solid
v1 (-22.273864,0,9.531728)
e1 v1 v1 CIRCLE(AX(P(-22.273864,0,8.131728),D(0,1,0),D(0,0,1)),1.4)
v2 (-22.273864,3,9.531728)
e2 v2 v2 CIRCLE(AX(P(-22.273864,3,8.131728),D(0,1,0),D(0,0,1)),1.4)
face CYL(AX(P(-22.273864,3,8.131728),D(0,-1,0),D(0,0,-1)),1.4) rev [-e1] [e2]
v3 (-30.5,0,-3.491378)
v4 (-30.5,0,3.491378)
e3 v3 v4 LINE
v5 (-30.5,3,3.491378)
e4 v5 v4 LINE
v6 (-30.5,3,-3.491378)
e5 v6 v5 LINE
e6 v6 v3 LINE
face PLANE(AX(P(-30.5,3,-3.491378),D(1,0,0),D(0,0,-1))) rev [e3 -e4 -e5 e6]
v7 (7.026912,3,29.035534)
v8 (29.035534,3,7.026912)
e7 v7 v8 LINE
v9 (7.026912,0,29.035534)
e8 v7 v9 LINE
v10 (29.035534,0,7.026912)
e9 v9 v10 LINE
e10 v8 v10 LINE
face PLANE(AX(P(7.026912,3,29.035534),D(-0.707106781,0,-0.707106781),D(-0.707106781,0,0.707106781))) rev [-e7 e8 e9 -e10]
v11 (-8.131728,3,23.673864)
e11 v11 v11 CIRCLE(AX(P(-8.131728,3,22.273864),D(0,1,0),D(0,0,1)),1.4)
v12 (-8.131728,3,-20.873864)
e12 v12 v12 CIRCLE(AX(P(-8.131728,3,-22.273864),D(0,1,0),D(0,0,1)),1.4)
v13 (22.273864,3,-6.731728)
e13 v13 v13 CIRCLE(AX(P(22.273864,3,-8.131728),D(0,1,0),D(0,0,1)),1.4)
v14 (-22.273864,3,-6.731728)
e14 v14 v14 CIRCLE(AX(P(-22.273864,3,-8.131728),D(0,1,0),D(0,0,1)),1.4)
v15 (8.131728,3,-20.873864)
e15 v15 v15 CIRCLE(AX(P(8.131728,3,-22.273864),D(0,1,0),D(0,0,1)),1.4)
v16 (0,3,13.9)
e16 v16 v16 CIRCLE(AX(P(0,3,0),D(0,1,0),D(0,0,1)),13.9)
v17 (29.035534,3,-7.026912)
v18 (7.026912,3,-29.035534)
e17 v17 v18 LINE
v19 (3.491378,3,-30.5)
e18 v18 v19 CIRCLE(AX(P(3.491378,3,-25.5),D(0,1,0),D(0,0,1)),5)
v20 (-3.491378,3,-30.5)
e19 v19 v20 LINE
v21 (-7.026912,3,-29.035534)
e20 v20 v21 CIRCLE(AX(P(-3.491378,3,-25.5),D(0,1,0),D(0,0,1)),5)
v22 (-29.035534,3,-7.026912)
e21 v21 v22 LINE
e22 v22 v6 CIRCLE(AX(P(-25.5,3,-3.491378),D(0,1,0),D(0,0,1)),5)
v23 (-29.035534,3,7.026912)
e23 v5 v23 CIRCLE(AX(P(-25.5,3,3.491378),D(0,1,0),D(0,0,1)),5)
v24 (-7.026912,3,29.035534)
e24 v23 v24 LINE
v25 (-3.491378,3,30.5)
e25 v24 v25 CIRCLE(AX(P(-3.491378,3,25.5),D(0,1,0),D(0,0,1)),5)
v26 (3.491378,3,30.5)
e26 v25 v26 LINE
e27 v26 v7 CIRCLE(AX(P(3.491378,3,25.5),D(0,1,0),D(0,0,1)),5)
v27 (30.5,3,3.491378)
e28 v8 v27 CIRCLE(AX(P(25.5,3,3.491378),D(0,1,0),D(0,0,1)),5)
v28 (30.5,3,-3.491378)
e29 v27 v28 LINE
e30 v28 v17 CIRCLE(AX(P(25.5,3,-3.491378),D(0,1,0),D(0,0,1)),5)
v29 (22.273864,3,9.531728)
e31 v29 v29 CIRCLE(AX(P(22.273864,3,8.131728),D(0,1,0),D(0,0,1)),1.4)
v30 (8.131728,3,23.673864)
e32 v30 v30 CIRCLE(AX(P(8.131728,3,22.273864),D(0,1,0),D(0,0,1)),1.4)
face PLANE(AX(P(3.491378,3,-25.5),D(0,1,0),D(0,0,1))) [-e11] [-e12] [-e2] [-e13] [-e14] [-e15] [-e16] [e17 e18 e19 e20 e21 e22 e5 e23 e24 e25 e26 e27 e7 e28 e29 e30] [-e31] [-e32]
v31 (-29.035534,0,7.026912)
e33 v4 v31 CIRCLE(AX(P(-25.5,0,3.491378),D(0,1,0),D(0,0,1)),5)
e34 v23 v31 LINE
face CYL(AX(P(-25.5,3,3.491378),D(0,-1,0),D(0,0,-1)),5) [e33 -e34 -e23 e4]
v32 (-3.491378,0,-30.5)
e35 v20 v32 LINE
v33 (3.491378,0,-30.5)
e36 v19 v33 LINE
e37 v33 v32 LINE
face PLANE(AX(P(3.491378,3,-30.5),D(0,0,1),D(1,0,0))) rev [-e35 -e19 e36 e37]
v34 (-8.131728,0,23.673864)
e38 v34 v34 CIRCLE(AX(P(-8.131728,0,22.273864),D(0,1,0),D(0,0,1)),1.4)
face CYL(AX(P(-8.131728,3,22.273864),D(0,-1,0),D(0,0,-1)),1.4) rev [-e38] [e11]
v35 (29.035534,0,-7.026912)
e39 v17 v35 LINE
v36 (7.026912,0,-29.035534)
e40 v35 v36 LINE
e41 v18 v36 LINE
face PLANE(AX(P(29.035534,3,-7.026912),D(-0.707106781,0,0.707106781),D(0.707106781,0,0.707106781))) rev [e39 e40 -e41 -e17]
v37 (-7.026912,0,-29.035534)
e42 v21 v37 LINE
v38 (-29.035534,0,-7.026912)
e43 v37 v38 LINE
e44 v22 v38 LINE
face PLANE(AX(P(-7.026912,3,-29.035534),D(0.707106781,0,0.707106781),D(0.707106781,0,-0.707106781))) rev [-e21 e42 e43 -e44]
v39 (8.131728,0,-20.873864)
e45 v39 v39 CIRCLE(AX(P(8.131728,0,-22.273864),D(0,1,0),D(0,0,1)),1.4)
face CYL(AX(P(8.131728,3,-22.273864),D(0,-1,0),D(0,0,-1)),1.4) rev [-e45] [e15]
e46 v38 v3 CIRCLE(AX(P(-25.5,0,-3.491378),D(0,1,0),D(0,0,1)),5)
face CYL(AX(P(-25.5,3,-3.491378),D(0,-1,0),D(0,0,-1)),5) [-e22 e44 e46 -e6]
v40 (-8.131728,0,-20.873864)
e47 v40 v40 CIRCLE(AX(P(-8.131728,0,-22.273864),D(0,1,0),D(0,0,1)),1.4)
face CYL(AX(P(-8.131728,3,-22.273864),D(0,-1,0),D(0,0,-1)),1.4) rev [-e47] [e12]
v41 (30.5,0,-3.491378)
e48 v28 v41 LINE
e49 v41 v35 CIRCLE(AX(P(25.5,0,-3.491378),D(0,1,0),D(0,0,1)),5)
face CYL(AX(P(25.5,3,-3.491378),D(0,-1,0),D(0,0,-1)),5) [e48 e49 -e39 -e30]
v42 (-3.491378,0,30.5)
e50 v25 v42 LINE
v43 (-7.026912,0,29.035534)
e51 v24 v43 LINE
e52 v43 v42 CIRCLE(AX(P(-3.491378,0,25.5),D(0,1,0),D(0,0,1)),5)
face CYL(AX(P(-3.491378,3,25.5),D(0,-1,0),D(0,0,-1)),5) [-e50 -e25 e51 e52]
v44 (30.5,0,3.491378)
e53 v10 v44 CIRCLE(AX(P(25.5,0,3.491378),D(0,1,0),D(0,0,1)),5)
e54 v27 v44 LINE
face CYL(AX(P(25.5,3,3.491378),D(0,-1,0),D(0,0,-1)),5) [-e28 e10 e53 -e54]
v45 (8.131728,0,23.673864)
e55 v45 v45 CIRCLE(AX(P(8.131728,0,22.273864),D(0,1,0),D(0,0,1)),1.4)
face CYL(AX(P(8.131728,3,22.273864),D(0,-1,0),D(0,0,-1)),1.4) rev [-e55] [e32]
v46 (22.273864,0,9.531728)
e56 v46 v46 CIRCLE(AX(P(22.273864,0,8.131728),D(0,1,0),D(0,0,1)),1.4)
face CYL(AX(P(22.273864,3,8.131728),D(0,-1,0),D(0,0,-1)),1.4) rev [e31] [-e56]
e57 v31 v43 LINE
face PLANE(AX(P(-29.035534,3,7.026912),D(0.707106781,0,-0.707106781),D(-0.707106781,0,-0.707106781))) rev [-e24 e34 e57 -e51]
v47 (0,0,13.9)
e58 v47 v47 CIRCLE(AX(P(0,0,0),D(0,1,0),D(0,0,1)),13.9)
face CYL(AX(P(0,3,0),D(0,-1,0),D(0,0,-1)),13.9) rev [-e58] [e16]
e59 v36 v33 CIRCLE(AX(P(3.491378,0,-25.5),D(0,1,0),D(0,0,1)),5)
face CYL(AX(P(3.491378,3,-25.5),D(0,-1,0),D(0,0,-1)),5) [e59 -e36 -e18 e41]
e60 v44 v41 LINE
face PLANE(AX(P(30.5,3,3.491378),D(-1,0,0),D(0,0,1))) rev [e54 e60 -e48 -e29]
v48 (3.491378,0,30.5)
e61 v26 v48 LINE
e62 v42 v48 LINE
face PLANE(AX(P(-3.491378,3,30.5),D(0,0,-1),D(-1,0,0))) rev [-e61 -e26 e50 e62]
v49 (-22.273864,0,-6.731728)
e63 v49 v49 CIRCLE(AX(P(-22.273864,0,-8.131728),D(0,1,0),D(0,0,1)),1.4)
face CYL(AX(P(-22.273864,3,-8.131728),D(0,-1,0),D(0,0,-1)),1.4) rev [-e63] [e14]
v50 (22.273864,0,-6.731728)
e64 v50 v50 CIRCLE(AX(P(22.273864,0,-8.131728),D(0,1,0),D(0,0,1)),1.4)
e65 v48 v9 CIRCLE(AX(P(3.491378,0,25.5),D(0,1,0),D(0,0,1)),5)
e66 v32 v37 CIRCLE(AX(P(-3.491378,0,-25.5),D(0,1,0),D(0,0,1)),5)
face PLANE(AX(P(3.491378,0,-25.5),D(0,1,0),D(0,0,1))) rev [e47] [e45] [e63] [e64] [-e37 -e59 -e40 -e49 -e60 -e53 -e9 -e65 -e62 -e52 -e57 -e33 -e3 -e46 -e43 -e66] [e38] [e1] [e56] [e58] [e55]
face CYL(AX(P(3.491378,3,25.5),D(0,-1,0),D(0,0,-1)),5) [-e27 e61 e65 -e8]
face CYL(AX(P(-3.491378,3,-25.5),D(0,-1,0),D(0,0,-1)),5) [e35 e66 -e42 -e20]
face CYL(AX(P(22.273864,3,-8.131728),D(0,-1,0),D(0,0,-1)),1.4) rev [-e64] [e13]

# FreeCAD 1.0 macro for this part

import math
import FreeCAD as App
import Part
import Sketcher
from FreeCAD import Vector
Q = App.Units.Quantity

doc = App.newDocument("Part")
body = doc.addObject("PartDesign::Body", "Body")

sketch1 = doc.addObject("Sketcher::SketchObject", "Sketch")
body.addObject(sketch1)
sketch1.AttachmentSupport = (doc.XZ_Plane, [""])
sketch1.MapMode = "FlatFace"
sketch1.addGeometry(Part.LineSegment(Vector(3.491378, -30.5, 0), Vector(-3.491378, -30.5, 0)), False)
sketch1.addGeometry(Part.ArcOfCircle(Part.Circle(Vector(-3.491378, -25.5, 0), Vector(0, 0, 1), 5), math.radians(-135), math.radians(-90)), False)
sketch1.addGeometry(Part.LineSegment(Vector(-7.026912, -29.035534, 0), Vector(-29.035534, -7.026912, 0)), False)
sketch1.addGeometry(Part.ArcOfCircle(Part.Circle(Vector(-25.5, -3.491378, 0), Vector(0, 0, 1), 5), math.radians(180), math.radians(225)), False)
sketch1.addGeometry(Part.LineSegment(Vector(-30.5, -3.491378, 0), Vector(-30.5, 3.491378, 0)), False)
sketch1.addGeometry(Part.ArcOfCircle(Part.Circle(Vector(-25.5, 3.491378, 0), Vector(0, 0, 1), 5), math.radians(135), math.radians(180)), False)
sketch1.addGeometry(Part.LineSegment(Vector(-29.035534, 7.026912, 0), Vector(-7.026912, 29.035534, 0)), False)
sketch1.addGeometry(Part.ArcOfCircle(Part.Circle(Vector(-3.491378, 25.5, 0), Vector(0, 0, 1), 5), math.radians(90), math.radians(135)), False)
sketch1.addGeometry(Part.LineSegment(Vector(-3.491378, 30.5, 0), Vector(3.491378, 30.5, 0)), False)
sketch1.addGeometry(Part.ArcOfCircle(Part.Circle(Vector(3.491378, 25.5, 0), Vector(0, 0, 1), 5), math.radians(45), math.radians(90)), False)
sketch1.addGeometry(Part.LineSegment(Vector(7.026912, 29.035534, 0), Vector(29.035534, 7.026912, 0)), False)
sketch1.addGeometry(Part.ArcOfCircle(Part.Circle(Vector(25.5, 3.491378, 0), Vector(0, 0, 1), 5), math.radians(0), math.radians(45)), False)
sketch1.addGeometry(Part.LineSegment(Vector(30.5, 3.491378, 0), Vector(30.5, -3.491378, 0)), False)
sketch1.addGeometry(Part.ArcOfCircle(Part.Circle(Vector(25.5, -3.491378, 0), Vector(0, 0, 1), 5), math.radians(-45), math.radians(0)), False)
sketch1.addGeometry(Part.LineSegment(Vector(29.035534, -7.026912, 0), Vector(7.026912, -29.035534, 0)), False)
sketch1.addGeometry(Part.ArcOfCircle(Part.Circle(Vector(3.491378, -25.5, 0), Vector(0, 0, 1), 5), math.radians(-90), math.radians(-45)), False)
sketch1.addGeometry(Part.Circle(Vector(-8.131728, 22.273864, 0), Vector(0, 0, 1), 1.4), False)
sketch1.addGeometry(Part.Circle(Vector(-22.273864, 8.131728, 0), Vector(0, 0, 1), 1.4), False)
sketch1.addGeometry(Part.Circle(Vector(8.131728, 22.273864, 0), Vector(0, 0, 1), 1.4), False)
sketch1.addGeometry(Part.Circle(Vector(22.273864, 8.131728, 0), Vector(0, 0, 1), 1.4), False)
sketch1.addGeometry(Part.Circle(Vector(-22.273864, -8.131728, 0), Vector(0, 0, 1), 1.4), False)
sketch1.addGeometry(Part.Circle(Vector(-8.131728, -22.273864, 0), Vector(0, 0, 1), 1.4), False)
sketch1.addGeometry(Part.Circle(Vector(0, 0, 0), Vector(0, 0, 1), 13.9), False)
sketch1.addGeometry(Part.Circle(Vector(22.273864, -8.131728, 0), Vector(0, 0, 1), 1.4), False)
sketch1.addGeometry(Part.Circle(Vector(8.131728, -22.273864, 0), Vector(0, 0, 1), 1.4), False)
sketch1.addConstraint(Sketcher.Constraint("Tangent", 0, 2, 1, 2))
sketch1.addConstraint(Sketcher.Constraint("Tangent", 1, 1, 2, 1))
sketch1.addConstraint(Sketcher.Constraint("Tangent", 2, 2, 3, 2))
sketch1.addConstraint(Sketcher.Constraint("Tangent", 3, 1, 4, 1))
sketch1.addConstraint(Sketcher.Constraint("Tangent", 4, 2, 5, 2))
sketch1.addConstraint(Sketcher.Constraint("Tangent", 5, 1, 6, 1))
sketch1.addConstraint(Sketcher.Constraint("Tangent", 6, 2, 7, 2))
sketch1.addConstraint(Sketcher.Constraint("Tangent", 7, 1, 8, 1))
sketch1.addConstraint(Sketcher.Constraint("Tangent", 8, 2, 9, 2))
sketch1.addConstraint(Sketcher.Constraint("Tangent", 9, 1, 10, 1))
sketch1.addConstraint(Sketcher.Constraint("Tangent", 10, 2, 11, 2))
sketch1.addConstraint(Sketcher.Constraint("Tangent", 11, 1, 12, 1))
sketch1.addConstraint(Sketcher.Constraint("Tangent", 12, 2, 13, 2))
sketch1.addConstraint(Sketcher.Constraint("Tangent", 13, 1, 14, 1))
sketch1.addConstraint(Sketcher.Constraint("Tangent", 14, 2, 15, 2))
sketch1.addConstraint(Sketcher.Constraint("Tangent", 15, 1, 0, 1))
sketch1.addConstraint(Sketcher.Constraint("Horizontal", 0))
sketch1.addConstraint(Sketcher.Constraint("Vertical", 4))
sketch1.addConstraint(Sketcher.Constraint("Horizontal", 8))
sketch1.addConstraint(Sketcher.Constraint("Vertical", 12))
sketch1.addConstraint(Sketcher.Constraint("Coincident", 22, 3, -1, 1))
sketch1.addConstraint(Sketcher.Constraint("Equal", 1, 3))
sketch1.addConstraint(Sketcher.Constraint("Equal", 3, 5))
sketch1.addConstraint(Sketcher.Constraint("Equal", 5, 7))
sketch1.addConstraint(Sketcher.Constraint("Equal", 7, 9))
sketch1.addConstraint(Sketcher.Constraint("Equal", 9, 11))
sketch1.addConstraint(Sketcher.Constraint("Equal", 11, 13))
sketch1.addConstraint(Sketcher.Constraint("Equal", 13, 15))
sketch1.addConstraint(Sketcher.Constraint("Equal", 16, 17))
sketch1.addConstraint(Sketcher.Constraint("Equal", 17, 18))
sketch1.addConstraint(Sketcher.Constraint("Equal", 18, 19))
sketch1.addConstraint(Sketcher.Constraint("Equal", 19, 20))
sketch1.addConstraint(Sketcher.Constraint("Equal", 20, 21))
sketch1.addConstraint(Sketcher.Constraint("Equal", 21, 23))
sketch1.addConstraint(Sketcher.Constraint("Equal", 23, 24))
sketch1.addConstraint(Sketcher.Constraint("Symmetric", 1, 3, 9, 3, -1, 1))
sketch1.addConstraint(Sketcher.Constraint("Symmetric", 3, 3, 11, 3, -1, 1))
sketch1.addConstraint(Sketcher.Constraint("Symmetric", 19, 3, 20, 3, -1, 1))
sketch1.addConstraint(Sketcher.Constraint("Symmetric", 18, 3, 21, 3, -1, 1))
sketch1.addConstraint(Sketcher.Constraint("Symmetric", 17, 3, 23, 3, -1, 1))
sketch1.addConstraint(Sketcher.Constraint("Symmetric", 16, 3, 24, 3, -1, 1))
sketch1.addConstraint(Sketcher.Constraint("Symmetric", 5, 1, 13, 1, -1, 1))
sketch1.addConstraint(Sketcher.Constraint("Symmetric", 16, 3, 18, 3, -2))
sketch1.addConstraint(Sketcher.Constraint("Symmetric", 17, 3, 19, 3, -2))
sketch1.addConstraint(Sketcher.Constraint("Symmetric", 6, 2, 9, 1, -2))
sketch1.addConstraint(Sketcher.Constraint("Perpendicular", 2, 6))
sketch1.addConstraint(Sketcher.Constraint("Equal", 8, 4))
sketch1.addConstraint(Sketcher.Constraint("Radius", 1, Q("5 mm")))
sketch1.addConstraint(Sketcher.Constraint("Diameter", 16, Q("2.8 mm")))
sketch1.addConstraint(Sketcher.Constraint("Diameter", 22, Q("27.8 mm")))
sketch1.addConstraint(Sketcher.Constraint("DistanceY", 1, 3, 7, 3, Q("51 mm")))
sketch1.addConstraint(Sketcher.Constraint("Distance", 2, Q("31.124892 mm")))
sketch1.addConstraint(Sketcher.Constraint("DistanceX", 16, 3, 7, 3, Q("4.64035 mm")))
sketch1.addConstraint(Sketcher.Constraint("DistanceY", 3, 3, 16, 3, Q("25.765242 mm")))
sketch1.addConstraint(Sketcher.Constraint("DistanceY", 5, 3, 17, 3, Q("4.64035 mm")))
sketch1.addConstraint(Sketcher.Constraint("DistanceX", 17, 3, 9, 3, Q("25.765242 mm")))
pad1 = doc.addObject("PartDesign::Pad", "Pad")
body.addObject(pad1)
pad1.Profile = sketch1
pad1.Length = 3
pad1.Reversed = True

doc.recompute()
